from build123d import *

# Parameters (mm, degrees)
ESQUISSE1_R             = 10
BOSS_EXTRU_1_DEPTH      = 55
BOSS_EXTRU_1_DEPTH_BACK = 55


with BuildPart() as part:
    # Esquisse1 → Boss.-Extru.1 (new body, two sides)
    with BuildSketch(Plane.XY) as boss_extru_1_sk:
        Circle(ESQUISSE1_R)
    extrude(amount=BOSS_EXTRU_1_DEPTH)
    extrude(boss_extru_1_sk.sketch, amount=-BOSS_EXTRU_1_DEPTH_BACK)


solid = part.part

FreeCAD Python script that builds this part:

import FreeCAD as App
import Part
import Sketcher

V = App.Vector

doc = App.newDocument("Part")
body = doc.addObject("PartDesign::Body", "Body")

# Sketch on XY plane
sketch1 = body.newObject("Sketcher::SketchObject", "Sketch")
sketch1.AttachmentSupport = (doc.getObject("XY_Plane"), [""])
sketch1.MapMode = "FlatFace"
sketch1.addGeometry(Part.Circle(V(0, 0, 0), V(0, 0, 1), 10), False)
sketch1.addConstraint([
    Sketcher.Constraint("Coincident", 0, 3, -1, 1),
    Sketcher.Constraint("Diameter", 0, 20.0),
])
pad1 = body.newObject("PartDesign::Pad", "Pad")
pad1.Profile = sketch1
pad1.Type = "TwoLengths"
pad1.Length = 55
pad1.Length2 = 55

doc.recompute()
